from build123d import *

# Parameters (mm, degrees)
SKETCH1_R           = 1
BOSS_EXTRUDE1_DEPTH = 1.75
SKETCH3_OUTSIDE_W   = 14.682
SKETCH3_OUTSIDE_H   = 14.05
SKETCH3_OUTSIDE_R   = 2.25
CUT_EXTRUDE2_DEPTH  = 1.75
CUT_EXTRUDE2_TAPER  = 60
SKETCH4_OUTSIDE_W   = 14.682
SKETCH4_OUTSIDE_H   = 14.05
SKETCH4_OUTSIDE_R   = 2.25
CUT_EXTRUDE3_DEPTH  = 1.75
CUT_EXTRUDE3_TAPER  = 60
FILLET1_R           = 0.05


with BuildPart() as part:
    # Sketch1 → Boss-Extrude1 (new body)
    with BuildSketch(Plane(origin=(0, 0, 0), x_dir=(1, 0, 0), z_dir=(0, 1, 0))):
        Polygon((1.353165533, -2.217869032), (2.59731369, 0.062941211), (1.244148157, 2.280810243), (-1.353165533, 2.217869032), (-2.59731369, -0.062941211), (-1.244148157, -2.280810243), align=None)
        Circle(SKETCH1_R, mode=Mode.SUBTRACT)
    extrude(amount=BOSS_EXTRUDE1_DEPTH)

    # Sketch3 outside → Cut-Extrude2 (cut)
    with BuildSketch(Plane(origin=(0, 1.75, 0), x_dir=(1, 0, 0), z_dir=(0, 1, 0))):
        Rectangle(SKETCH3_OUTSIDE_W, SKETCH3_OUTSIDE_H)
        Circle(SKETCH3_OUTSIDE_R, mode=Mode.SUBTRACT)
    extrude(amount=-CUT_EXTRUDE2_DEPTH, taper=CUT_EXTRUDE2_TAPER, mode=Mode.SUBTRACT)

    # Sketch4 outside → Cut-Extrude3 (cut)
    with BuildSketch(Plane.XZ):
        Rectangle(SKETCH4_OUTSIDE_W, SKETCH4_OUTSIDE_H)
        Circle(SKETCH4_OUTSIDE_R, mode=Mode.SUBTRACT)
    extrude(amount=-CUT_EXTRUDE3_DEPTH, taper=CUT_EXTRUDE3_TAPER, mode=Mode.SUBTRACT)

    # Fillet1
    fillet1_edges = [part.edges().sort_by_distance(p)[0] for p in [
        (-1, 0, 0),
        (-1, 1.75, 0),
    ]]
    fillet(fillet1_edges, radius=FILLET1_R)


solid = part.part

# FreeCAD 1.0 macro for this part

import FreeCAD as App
import Part
import Sketcher
from FreeCAD import Vector


def edges_at(feature, points):
    """Names of the edges that pass closest to the given points."""
    edges = feature.Shape.Edges
    near = lambda p: min(range(len(edges)), key=lambda i: edges[i].distToShape(Part.Vertex(*p))[0])
    return sorted({f"Edge{near(p) + 1}" for p in points})

doc = App.newDocument("Part")
body = doc.addObject("PartDesign::Body", "Body")

# Sketch on XZ plane
sketch1 = body.newObject("Sketcher::SketchObject", "Sketch")
sketch1.AttachmentSupport = (doc.getObject("XZ_Plane"), [""])
sketch1.MapMode = "FlatFace"
sketch1.addGeometry([
    Part.LineSegment(Vector(1.4, 2.2, 0), Vector(2.6, -0.1, 0)),  # 0
    Part.LineSegment(Vector(2.6, -0.1, 0), Vector(1.2, -2.3, 0)),  # 1
    Part.LineSegment(Vector(1.2, -2.3, 0), Vector(-1.4, -2.2, 0)),  # 2
    Part.LineSegment(Vector(-1.4, -2.2, 0), Vector(-2.6, 0.1, 0)),  # 3
    Part.LineSegment(Vector(-2.6, 0.1, 0), Vector(-1.2, 2.3, 0)),  # 4
    Part.LineSegment(Vector(-1.2, 2.3, 0), Vector(1.4, 2.2, 0)),  # 5
    Part.Circle(Vector(0, 0, 0), Vector(0, 0, 1), 1),  # 6
], False)
sketch1.addConstraint([
    Sketcher.Constraint("Coincident", 0, 2, 1, 1),
    Sketcher.Constraint("Coincident", 1, 2, 2, 1),
    Sketcher.Constraint("Coincident", 2, 2, 3, 1),
    Sketcher.Constraint("Coincident", 3, 2, 4, 1),
    Sketcher.Constraint("Coincident", 4, 2, 5, 1),
    Sketcher.Constraint("Coincident", 5, 2, 0, 1),
    Sketcher.Constraint("Coincident", 6, 3, -1, 1),
    Sketcher.Constraint("Symmetric", 0, 2, 3, 2, -1, 1),
    Sketcher.Constraint("Symmetric", 1, 2, 4, 2, -1, 1),
    Sketcher.Constraint("Symmetric", 2, 2, 5, 2, -1, 1),
    Sketcher.Constraint("Equal", 0, 1),
    Sketcher.Constraint("Equal", 1, 2),
    Sketcher.Constraint("Diameter", 6, 2.0),
    Sketcher.Constraint("DistanceY", 0, 2, -1, 1, 0.062941),
    Sketcher.Constraint("DistanceX", -1, 1, 1, 2, 1.244148),
    Sketcher.Constraint("DistanceY", 1, 2, -1, 1, 2.28081),
    Sketcher.Constraint("DistanceY", 2, 2, -1, 1, 2.217869),
])
pad1 = body.newObject("PartDesign::Pad", "Pad")
pad1.Profile = sketch1
pad1.Length = 1.75
pad1.Reversed = True

# Sketch on XZ plane
sketch2 = body.newObject("Sketcher::SketchObject", "Sketch001")
sketch2.AttachmentSupport = (doc.getObject("XZ_Plane"), [""])
sketch2.MapMode = "FlatFace"
sketch2.AttachmentOffset = App.Placement(Vector(0, 0, -1.75), App.Rotation())
sketch2.addGeometry([
    Part.LineSegment(Vector(-7.3, -7, 0), Vector(-7.3, 7, 0)),  # 0
    Part.LineSegment(Vector(-7.3, 7, 0), Vector(7.3, 7, 0)),  # 1
    Part.LineSegment(Vector(7.3, 7, 0), Vector(7.3, -7, 0)),  # 2
    Part.LineSegment(Vector(7.3, -7, 0), Vector(-7.3, -7, 0)),  # 3
    Part.Circle(Vector(0, 0, 0), Vector(0, 0, 1), 2.2),  # 4
], False)
sketch2.addConstraint([
    Sketcher.Constraint("Coincident", 0, 2, 1, 1),
    Sketcher.Constraint("Coincident", 1, 2, 2, 1),
    Sketcher.Constraint("Coincident", 2, 2, 3, 1),
    Sketcher.Constraint("Coincident", 3, 2, 0, 1),
    Sketcher.Constraint("Vertical", 0),
    Sketcher.Constraint("Horizontal", 1),
    Sketcher.Constraint("Vertical", 2),
    Sketcher.Constraint("Horizontal", 3),
    Sketcher.Constraint("Coincident", 4, 3, -1, 1),
    Sketcher.Constraint("Symmetric", 0, 2, 2, 2, -1, 1),
    Sketcher.Constraint("Diameter", 4, 4.5),
    Sketcher.Constraint("DistanceY", 0, 1, 0, 2, 14.05),
    Sketcher.Constraint("DistanceX", 1, 1, 1, 2, 14.682),
])
pocket1 = body.newObject("PartDesign::Pocket", "Pocket")
pocket1.Profile = sketch2
pocket1.Length = 1.75
pocket1.Reversed = True
pocket1.TaperAngle = 60

# Sketch on XZ plane
sketch3 = body.newObject("Sketcher::SketchObject", "Sketch002")
sketch3.AttachmentSupport = (doc.getObject("XZ_Plane"), [""])
sketch3.MapMode = "FlatFace"
sketch3.addGeometry([
    Part.LineSegment(Vector(-7.3, 7, 0), Vector(-7.3, -7, 0)),  # 0
    Part.LineSegment(Vector(-7.3, -7, 0), Vector(7.3, -7, 0)),  # 1
    Part.LineSegment(Vector(7.3, -7, 0), Vector(7.3, 7, 0)),  # 2
    Part.LineSegment(Vector(7.3, 7, 0), Vector(-7.3, 7, 0)),  # 3
    Part.Circle(Vector(0, 0, 0), Vector(0, 0, 1), 2.2),  # 4
], False)
sketch3.addConstraint([
    Sketcher.Constraint("Coincident", 0, 2, 1, 1),
    Sketcher.Constraint("Coincident", 1, 2, 2, 1),
    Sketcher.Constraint("Coincident", 2, 2, 3, 1),
    Sketcher.Constraint("Coincident", 3, 2, 0, 1),
    Sketcher.Constraint("Vertical", 0),
    Sketcher.Constraint("Horizontal", 1),
    Sketcher.Constraint("Vertical", 2),
    Sketcher.Constraint("Horizontal", 3),
    Sketcher.Constraint("Coincident", 4, 3, -1, 1),
    Sketcher.Constraint("Symmetric", 0, 2, 2, 2, -1, 1),
    Sketcher.Constraint("Diameter", 4, 4.5),
    Sketcher.Constraint("DistanceY", 0, 2, 0, 1, 14.05),
    Sketcher.Constraint("DistanceX", 1, 1, 1, 2, 14.682),
])
pocket2 = body.newObject("PartDesign::Pocket", "Pocket001")
pocket2.Profile = sketch3
pocket2.Length = 1.75
pocket2.TaperAngle = 60
doc.recompute()

fillet = body.newObject("PartDesign::Fillet", "Fillet")
fillet.Base = (pocket2, edges_at(pocket2, [(-1, 0, 0), (-1, 1.75, 0)]))
fillet.Radius = 0.05

doc.recompute()
